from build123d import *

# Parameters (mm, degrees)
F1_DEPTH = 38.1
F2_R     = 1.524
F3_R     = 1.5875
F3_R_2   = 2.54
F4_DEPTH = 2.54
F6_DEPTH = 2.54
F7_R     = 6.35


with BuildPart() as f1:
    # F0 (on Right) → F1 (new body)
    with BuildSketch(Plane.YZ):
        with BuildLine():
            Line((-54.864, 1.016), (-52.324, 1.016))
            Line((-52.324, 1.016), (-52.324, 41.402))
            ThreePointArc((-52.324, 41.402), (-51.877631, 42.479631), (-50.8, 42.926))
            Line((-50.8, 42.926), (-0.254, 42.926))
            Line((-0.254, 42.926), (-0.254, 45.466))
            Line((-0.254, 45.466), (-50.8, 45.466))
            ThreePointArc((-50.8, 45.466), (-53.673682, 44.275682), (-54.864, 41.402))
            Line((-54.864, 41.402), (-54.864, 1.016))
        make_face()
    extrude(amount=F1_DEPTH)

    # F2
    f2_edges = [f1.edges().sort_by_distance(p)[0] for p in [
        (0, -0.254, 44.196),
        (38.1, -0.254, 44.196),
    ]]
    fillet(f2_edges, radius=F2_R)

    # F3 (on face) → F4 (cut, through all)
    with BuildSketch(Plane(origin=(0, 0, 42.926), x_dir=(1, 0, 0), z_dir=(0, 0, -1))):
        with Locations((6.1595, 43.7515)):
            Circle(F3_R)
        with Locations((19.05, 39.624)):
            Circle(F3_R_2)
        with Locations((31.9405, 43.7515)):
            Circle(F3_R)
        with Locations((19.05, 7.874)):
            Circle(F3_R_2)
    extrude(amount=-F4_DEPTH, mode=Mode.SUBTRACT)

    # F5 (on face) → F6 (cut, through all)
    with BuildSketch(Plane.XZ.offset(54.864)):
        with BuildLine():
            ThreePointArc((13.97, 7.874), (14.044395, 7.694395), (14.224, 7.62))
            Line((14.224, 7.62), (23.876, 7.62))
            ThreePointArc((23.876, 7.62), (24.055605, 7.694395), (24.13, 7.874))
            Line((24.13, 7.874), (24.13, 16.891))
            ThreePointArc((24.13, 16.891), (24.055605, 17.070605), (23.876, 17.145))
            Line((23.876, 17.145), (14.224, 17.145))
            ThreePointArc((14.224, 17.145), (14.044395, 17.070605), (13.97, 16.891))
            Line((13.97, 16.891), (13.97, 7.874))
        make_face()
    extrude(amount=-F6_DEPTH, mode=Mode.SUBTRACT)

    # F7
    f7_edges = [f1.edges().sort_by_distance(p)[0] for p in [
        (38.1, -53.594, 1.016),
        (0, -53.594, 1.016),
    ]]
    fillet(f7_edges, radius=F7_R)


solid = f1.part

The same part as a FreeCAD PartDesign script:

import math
import FreeCAD as App
import Part
import Sketcher
Q = App.Units.Quantity


def edges_at(feature, points):
    """Names of the edges that pass closest to the given points."""
    edges = feature.Shape.Edges
    near = lambda p: min(range(len(edges)), key=lambda i: edges[i].distToShape(Part.Vertex(*p))[0])
    return sorted({f"Edge{near(p) + 1}" for p in points})

doc = App.newDocument("Part")
body = doc.addObject("PartDesign::Body", "Body")

sketch1 = body.newObject("Sketcher::SketchObject", "Sketch")
sketch1.AttachmentSupport = (doc.getObject("YZ_Plane"), [""])
sketch1.MapMode = "FlatFace"
sketch1.addGeometry([
    Part.LineSegment(App.Vector(-54.9, 1, 0), App.Vector(-52.3, 1, 0)),
    Part.LineSegment(App.Vector(-52.3, 1, 0), App.Vector(-52.3, 41.4, 0)),
    Part.ArcOfCircle(Part.Circle(App.Vector(-50.8, 41.4, 0), App.Vector(0, 0, 1), 1.5), math.radians(90), math.radians(180)),
    Part.LineSegment(App.Vector(-50.8, 42.9, 0), App.Vector(-0.3, 42.9, 0)),
    Part.LineSegment(App.Vector(-0.3, 42.9, 0), App.Vector(-0.3, 45.5, 0)),
    Part.LineSegment(App.Vector(-0.3, 45.5, 0), App.Vector(-50.8, 45.5, 0)),
    Part.ArcOfCircle(Part.Circle(App.Vector(-50.8, 41.4, 0), App.Vector(0, 0, 1), 4.1), math.radians(90), math.radians(180)),
    Part.LineSegment(App.Vector(-54.9, 41.4, 0), App.Vector(-54.9, 1, 0)),
], False)
sketch1.addConstraint([
    Sketcher.Constraint("Coincident", 0, 2, 1, 1),
    Sketcher.Constraint("Tangent", 1, 2, 2, 2),
    Sketcher.Constraint("Tangent", 2, 1, 3, 1),
    Sketcher.Constraint("Coincident", 3, 2, 4, 1),
    Sketcher.Constraint("Coincident", 4, 2, 5, 1),
    Sketcher.Constraint("Tangent", 5, 2, 6, 1),
    Sketcher.Constraint("Tangent", 6, 2, 7, 1),
    Sketcher.Constraint("Coincident", 7, 2, 0, 1),
    Sketcher.Constraint("Horizontal", 0),
    Sketcher.Constraint("Vertical", 1),
    Sketcher.Constraint("Horizontal", 3),
    Sketcher.Constraint("Vertical", 4),
    Sketcher.Constraint("Horizontal", 5),
    Sketcher.Constraint("Vertical", 7),
    Sketcher.Constraint("Coincident", 6, 3, 2, 3),
    Sketcher.Constraint("Radius", 2, Q("0.06 in")),
    Sketcher.Constraint("Radius", 6, Q("0.16 in")),
    Sketcher.Constraint("DistanceX", 2, 3, -1, 1, Q("2 in")),
    Sketcher.Constraint("DistanceX", 3, 1, 3, 2, Q("1.99 in")),
    Sketcher.Constraint("DistanceY", 1, 1, 1, 2, Q("1.59 in")),
    Sketcher.Constraint("DistanceY", -1, 1, 2, 3, Q("1.63 in")),
])
pad1 = body.newObject("PartDesign::Pad", "Pad")
pad1.Profile = sketch1
pad1.Length = Q("1.5 in")
doc.recompute()

fillet = body.newObject("PartDesign::Fillet", "Fillet")
fillet.Base = (pad1, edges_at(pad1, [(0, -0.254, 44.196), (38.1, -0.254, 44.196)]))
fillet.Radius = Q("0.06 in")

sketch2 = body.newObject("Sketcher::SketchObject", "Sketch001")
sketch2.AttachmentSupport = (doc.getObject("XY_Plane"), [""])
sketch2.MapMode = "FlatFace"
sketch2.AttachmentOffset = App.Placement(App.Vector(0, 0, 1.69 * 25.4), App.Rotation())
sketch2.addGeometry([
    Part.Circle(App.Vector(6.2, -43.8, 0), App.Vector(0, 0, 1), 1.6),
    Part.Circle(App.Vector(19.1, -39.6, 0), App.Vector(0, 0, 1), 2.5),
    Part.Circle(App.Vector(31.9, -43.8, 0), App.Vector(0, 0, 1), 1.6),
    Part.Circle(App.Vector(19.1, -7.9, 0), App.Vector(0, 0, 1), 2.5),
], False)
sketch2.addConstraint([
    Sketcher.Constraint("Equal", 0, 2),
    Sketcher.Constraint("Equal", 1, 3),
    Sketcher.Constraint("Horizontal", 0, 3, 2, 3),
    Sketcher.Constraint("Vertical", 1, 3, 3, 3),
    Sketcher.Constraint("Diameter", 1, Q("0.2 in")),
    Sketcher.Constraint("Diameter", 0, Q("0.125 in")),
    Sketcher.Constraint("DistanceX", -1, 1, 1, 3, Q("0.75 in")),
    Sketcher.Constraint("DistanceY", 1, 3, -1, 1, Q("1.56 in")),
    Sketcher.Constraint("DistanceY", 3, 3, -1, 1, Q("0.31 in")),
    Sketcher.Constraint("DistanceX", 0, 3, 2, 3, Q("1.015 in")),
    Sketcher.Constraint("DistanceX", -1, 1, 0, 3, Q("0.2425 in")),
    Sketcher.Constraint("DistanceY", 0, 3, -1, 1, Q("1.7225 in")),
])
pocket1 = body.newObject("PartDesign::Pocket", "Pocket")
pocket1.Profile = sketch2
pocket1.Type = "ThroughAll"
pocket1.Reversed = True

sketch3 = body.newObject("Sketcher::SketchObject", "Sketch002")
sketch3.AttachmentSupport = (doc.getObject("XZ_Plane"), [""])
sketch3.MapMode = "FlatFace"
sketch3.AttachmentOffset = App.Placement(App.Vector(0, 0, 2.16 * 25.4), App.Rotation())
sketch3.addGeometry([
    Part.ArcOfCircle(Part.Circle(App.Vector(14.22, 7.87, 0), App.Vector(0, 0, 1), 0.25), math.radians(-180), math.radians(-90)),
    Part.LineSegment(App.Vector(14.22, 7.62, 0), App.Vector(23.88, 7.62, 0)),
    Part.ArcOfCircle(Part.Circle(App.Vector(23.88, 7.87, 0), App.Vector(0, 0, 1), 0.25), math.radians(-90), math.radians(0)),
    Part.LineSegment(App.Vector(24.13, 7.87, 0), App.Vector(24.13, 16.89, 0)),
    Part.ArcOfCircle(Part.Circle(App.Vector(23.88, 16.89, 0), App.Vector(0, 0, 1), 0.25), math.radians(0), math.radians(90)),
    Part.LineSegment(App.Vector(23.88, 17.14, 0), App.Vector(14.22, 17.14, 0)),
    Part.ArcOfCircle(Part.Circle(App.Vector(14.22, 16.89, 0), App.Vector(0, 0, 1), 0.25), math.radians(90), math.radians(180)),
    Part.LineSegment(App.Vector(13.97, 16.89, 0), App.Vector(13.97, 7.87, 0)),
], False)
sketch3.addConstraint([
    Sketcher.Constraint("Tangent", 0, 2, 1, 1),
    Sketcher.Constraint("Tangent", 1, 2, 2, 1),
    Sketcher.Constraint("Tangent", 2, 2, 3, 1),
    Sketcher.Constraint("Tangent", 3, 2, 4, 1),
    Sketcher.Constraint("Tangent", 4, 2, 5, 1),
    Sketcher.Constraint("Tangent", 5, 2, 6, 1),
    Sketcher.Constraint("Tangent", 6, 2, 7, 1),
    Sketcher.Constraint("Tangent", 7, 2, 0, 1),
    Sketcher.Constraint("Horizontal", 1),
    Sketcher.Constraint("Vertical", 3),
    Sketcher.Constraint("Horizontal", 5),
    Sketcher.Constraint("Vertical", 7),
    Sketcher.Constraint("Equal", 0, 2),
    Sketcher.Constraint("Equal", 2, 4),
    Sketcher.Constraint("Equal", 4, 6),
    Sketcher.Constraint("Radius", 0, Q("0.01 in")),
    Sketcher.Constraint("DistanceX", 1, 1, 1, 2, Q("0.38 in")),
    Sketcher.Constraint("DistanceY", -1, 1, 0, 2, Q("0.3 in")),
    Sketcher.Constraint("DistanceY", 3, 1, 3, 2, Q("0.355 in")),
    Sketcher.Constraint("DistanceX", -1, 1, 0, 3, Q("0.56 in")),
])
pocket2 = body.newObject("PartDesign::Pocket", "Pocket001")
pocket2.Profile = sketch3
pocket2.Type = "ThroughAll"
doc.recompute()

fillet2 = body.newObject("PartDesign::Fillet", "Fillet001")
fillet2.Base = (pocket2, edges_at(pocket2, [(38.1, -53.594, 1.016), (0, -53.594, 1.016)]))
fillet2.Radius = Q("0.25 in")

doc.recompute()
